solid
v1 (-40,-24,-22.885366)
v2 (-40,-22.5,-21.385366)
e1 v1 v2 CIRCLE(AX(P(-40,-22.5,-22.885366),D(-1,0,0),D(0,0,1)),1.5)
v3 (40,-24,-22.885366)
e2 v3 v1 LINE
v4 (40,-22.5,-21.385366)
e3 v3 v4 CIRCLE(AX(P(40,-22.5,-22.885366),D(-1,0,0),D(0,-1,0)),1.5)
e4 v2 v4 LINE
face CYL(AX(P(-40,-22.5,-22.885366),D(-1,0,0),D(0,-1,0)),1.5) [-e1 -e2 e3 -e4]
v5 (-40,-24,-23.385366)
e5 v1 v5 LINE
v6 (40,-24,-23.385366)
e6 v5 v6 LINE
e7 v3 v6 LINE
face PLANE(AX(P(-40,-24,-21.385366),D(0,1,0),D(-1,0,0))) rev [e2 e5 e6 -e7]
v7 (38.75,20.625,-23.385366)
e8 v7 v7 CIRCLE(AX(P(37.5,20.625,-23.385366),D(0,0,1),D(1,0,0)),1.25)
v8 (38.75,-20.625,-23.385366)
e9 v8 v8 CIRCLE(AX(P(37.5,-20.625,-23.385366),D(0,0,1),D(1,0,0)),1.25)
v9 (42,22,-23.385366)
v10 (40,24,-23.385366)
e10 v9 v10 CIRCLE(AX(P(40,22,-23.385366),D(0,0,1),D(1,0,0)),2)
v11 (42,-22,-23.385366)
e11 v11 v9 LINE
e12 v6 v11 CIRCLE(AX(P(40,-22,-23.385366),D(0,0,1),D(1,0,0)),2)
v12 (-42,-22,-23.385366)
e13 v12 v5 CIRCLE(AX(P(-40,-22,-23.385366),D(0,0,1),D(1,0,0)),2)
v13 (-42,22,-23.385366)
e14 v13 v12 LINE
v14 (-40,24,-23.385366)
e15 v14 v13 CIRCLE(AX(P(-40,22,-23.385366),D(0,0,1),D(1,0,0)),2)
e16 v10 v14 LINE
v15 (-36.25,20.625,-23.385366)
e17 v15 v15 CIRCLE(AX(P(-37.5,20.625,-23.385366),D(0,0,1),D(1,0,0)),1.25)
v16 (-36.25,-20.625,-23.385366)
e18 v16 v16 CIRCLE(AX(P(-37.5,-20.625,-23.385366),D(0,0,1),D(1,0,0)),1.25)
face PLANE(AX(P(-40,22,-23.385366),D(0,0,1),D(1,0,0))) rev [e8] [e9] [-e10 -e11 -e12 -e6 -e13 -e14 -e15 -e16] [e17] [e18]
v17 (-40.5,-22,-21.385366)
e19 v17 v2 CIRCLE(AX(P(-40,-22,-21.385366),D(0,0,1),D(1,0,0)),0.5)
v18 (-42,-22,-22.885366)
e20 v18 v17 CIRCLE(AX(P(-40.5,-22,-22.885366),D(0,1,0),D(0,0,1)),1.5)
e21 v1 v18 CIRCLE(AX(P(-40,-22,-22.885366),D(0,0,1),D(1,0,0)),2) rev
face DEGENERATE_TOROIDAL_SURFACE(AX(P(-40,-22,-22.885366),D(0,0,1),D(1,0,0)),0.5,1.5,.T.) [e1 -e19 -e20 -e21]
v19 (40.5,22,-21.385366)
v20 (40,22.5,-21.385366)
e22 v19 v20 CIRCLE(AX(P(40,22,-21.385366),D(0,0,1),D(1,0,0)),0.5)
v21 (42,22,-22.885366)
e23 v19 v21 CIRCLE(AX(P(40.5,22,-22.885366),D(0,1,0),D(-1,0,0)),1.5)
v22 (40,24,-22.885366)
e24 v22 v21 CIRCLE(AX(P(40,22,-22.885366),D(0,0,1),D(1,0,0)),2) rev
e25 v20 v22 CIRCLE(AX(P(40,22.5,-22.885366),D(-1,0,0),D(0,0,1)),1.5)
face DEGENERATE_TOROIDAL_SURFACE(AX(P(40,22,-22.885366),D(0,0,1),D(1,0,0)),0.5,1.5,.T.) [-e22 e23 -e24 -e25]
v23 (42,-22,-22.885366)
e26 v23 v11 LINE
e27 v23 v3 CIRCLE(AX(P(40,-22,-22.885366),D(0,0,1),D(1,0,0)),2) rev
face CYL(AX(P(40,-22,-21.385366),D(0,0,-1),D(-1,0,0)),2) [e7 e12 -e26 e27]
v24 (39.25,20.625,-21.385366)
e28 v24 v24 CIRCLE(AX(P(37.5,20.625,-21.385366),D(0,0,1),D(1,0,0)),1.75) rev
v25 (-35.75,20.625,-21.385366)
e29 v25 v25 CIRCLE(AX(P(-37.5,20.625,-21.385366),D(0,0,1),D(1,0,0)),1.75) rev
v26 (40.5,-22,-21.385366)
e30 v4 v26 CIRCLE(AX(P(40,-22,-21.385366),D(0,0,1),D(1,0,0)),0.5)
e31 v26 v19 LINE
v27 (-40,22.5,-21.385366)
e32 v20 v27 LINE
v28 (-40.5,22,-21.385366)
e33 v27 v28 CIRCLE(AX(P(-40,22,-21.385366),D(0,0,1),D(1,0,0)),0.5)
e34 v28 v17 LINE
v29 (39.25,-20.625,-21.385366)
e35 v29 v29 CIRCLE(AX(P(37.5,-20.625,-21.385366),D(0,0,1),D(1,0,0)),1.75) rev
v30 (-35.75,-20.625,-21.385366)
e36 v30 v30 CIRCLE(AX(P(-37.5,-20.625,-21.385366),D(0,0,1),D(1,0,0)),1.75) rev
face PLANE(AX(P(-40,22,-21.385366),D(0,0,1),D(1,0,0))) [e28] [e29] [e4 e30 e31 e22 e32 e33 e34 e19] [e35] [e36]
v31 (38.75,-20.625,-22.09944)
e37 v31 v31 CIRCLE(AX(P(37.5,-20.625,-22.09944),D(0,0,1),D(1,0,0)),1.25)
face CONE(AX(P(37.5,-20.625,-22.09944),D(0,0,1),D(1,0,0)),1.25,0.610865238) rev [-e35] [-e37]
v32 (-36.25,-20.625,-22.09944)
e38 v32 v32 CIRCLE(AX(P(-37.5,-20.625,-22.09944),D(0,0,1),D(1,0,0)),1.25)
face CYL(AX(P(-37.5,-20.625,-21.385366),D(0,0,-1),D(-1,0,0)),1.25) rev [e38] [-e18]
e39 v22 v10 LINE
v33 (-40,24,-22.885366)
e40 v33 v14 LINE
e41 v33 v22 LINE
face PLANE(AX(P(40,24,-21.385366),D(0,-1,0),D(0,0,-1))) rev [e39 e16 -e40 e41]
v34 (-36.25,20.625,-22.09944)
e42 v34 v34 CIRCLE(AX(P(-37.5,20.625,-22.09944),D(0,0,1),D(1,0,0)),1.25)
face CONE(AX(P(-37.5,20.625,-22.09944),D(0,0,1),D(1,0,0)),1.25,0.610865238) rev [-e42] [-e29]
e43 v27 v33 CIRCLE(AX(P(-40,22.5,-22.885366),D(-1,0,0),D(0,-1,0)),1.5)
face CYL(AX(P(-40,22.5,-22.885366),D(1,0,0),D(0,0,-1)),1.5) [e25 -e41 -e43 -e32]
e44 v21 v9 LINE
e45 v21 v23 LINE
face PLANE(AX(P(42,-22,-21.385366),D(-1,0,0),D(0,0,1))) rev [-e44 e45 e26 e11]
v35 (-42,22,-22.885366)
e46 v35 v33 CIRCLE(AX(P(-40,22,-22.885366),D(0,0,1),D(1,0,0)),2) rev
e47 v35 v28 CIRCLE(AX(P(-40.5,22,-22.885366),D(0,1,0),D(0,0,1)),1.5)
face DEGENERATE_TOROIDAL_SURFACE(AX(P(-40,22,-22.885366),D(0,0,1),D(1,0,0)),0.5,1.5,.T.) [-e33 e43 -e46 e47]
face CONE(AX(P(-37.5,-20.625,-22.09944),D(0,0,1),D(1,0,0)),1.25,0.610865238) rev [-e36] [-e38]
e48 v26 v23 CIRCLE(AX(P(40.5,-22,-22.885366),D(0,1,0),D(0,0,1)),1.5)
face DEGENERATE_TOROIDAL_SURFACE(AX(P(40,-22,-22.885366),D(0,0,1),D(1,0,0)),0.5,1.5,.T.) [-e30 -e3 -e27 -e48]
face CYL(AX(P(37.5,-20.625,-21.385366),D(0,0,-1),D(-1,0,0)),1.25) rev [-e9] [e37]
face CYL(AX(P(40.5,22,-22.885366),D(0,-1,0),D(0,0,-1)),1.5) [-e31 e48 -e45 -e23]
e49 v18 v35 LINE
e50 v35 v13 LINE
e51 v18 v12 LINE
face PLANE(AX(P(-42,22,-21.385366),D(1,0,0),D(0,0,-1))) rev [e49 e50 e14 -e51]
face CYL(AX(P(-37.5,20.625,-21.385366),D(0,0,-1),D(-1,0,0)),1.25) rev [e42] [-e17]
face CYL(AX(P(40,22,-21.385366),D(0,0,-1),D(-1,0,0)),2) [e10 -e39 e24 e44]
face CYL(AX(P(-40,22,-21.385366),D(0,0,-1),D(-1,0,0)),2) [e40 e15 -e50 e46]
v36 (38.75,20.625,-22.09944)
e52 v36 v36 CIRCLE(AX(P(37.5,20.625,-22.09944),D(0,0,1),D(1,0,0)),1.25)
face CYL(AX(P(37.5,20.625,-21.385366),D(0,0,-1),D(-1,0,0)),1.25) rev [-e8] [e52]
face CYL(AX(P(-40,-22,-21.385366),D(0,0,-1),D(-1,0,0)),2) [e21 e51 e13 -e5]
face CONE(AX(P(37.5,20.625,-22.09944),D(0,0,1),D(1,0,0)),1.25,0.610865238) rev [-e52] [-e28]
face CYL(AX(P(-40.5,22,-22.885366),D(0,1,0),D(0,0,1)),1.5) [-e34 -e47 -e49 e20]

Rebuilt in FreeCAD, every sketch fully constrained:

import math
import FreeCAD as App
import Part
import Sketcher
Q = App.Units.Quantity


def edges_at(feature, points):
    """Names of the edges that pass closest to the given points."""
    edges = feature.Shape.Edges
    near = lambda p: min(range(len(edges)), key=lambda i: edges[i].distToShape(Part.Vertex(*p))[0])
    return sorted({f"Edge{near(p) + 1}" for p in points})

doc = App.newDocument("Part")
body = doc.addObject("PartDesign::Body", "Body")

# Sketch on XY plane
sketch1 = doc.addObject("Sketcher::SketchObject", "Sketch")
body.addObject(sketch1)
sketch1.AttachmentSupport = (doc.XY_Plane, [""])
sketch1.MapMode = "FlatFace"
sketch1.AttachmentOffset = App.Placement(App.Vector(0, 0, -23.385366), App.Rotation())
sketch1.addGeometry([
    Part.LineSegment(App.Vector(-42, 22, 0), App.Vector(-42, -22, 0)),  # 0
    Part.ArcOfCircle(Part.Circle(App.Vector(-40, -22, 0), App.Vector(0, 0, 1), 2), math.radians(-180), math.radians(-90)),  # 1
    Part.LineSegment(App.Vector(-40, -24, 0), App.Vector(40, -24, 0)),  # 2
    Part.ArcOfCircle(Part.Circle(App.Vector(40, -22, 0), App.Vector(0, 0, 1), 2), math.radians(-90), math.radians(0)),  # 3
    Part.LineSegment(App.Vector(42, -22, 0), App.Vector(42, 22, 0)),  # 4
    Part.ArcOfCircle(Part.Circle(App.Vector(40, 22, 0), App.Vector(0, 0, 1), 2), math.radians(0), math.radians(90)),  # 5
    Part.LineSegment(App.Vector(40, 24, 0), App.Vector(-40, 24, 0)),  # 6
    Part.ArcOfCircle(Part.Circle(App.Vector(-40, 22, 0), App.Vector(0, 0, 1), 2), math.radians(90), math.radians(180)),  # 7
    Part.Circle(App.Vector(-37.5, -20.6, 0), App.Vector(0, 0, 1), 1.2),  # 8
    Part.Circle(App.Vector(37.5, -20.6, 0), App.Vector(0, 0, 1), 1.2),  # 9
    Part.Circle(App.Vector(-37.5, 20.6, 0), App.Vector(0, 0, 1), 1.2),  # 10
    Part.Circle(App.Vector(37.5, 20.6, 0), App.Vector(0, 0, 1), 1.2),  # 11
], False)
sketch1.addConstraint([
    Sketcher.Constraint("Tangent", 0, 2, 1, 1),
    Sketcher.Constraint("Tangent", 1, 2, 2, 1),
    Sketcher.Constraint("Tangent", 2, 2, 3, 1),
    Sketcher.Constraint("Tangent", 3, 2, 4, 1),
    Sketcher.Constraint("Tangent", 4, 2, 5, 1),
    Sketcher.Constraint("Tangent", 5, 2, 6, 1),
    Sketcher.Constraint("Tangent", 6, 2, 7, 1),
    Sketcher.Constraint("Tangent", 7, 2, 0, 1),
    Sketcher.Constraint("Vertical", 0),
    Sketcher.Constraint("Horizontal", 2),
    Sketcher.Constraint("Vertical", 4),
    Sketcher.Constraint("Horizontal", 6),
    Sketcher.Constraint("Equal", 1, 3),
    Sketcher.Constraint("Equal", 3, 5),
    Sketcher.Constraint("Equal", 5, 7),
    Sketcher.Constraint("Equal", 8, 9),
    Sketcher.Constraint("Equal", 9, 10),
    Sketcher.Constraint("Equal", 10, 11),
    Sketcher.Constraint("Symmetric", 1, 3, 5, 3, -1, 1),
    Sketcher.Constraint("Symmetric", 9, 3, 10, 3, -1, 1),
    Sketcher.Constraint("Symmetric", 8, 3, 11, 3, -1, 1),
    Sketcher.Constraint("Symmetric", 8, 3, 9, 3, -2),
    Sketcher.Constraint("Radius", 1, Q("2 mm")),
    Sketcher.Constraint("Diameter", 8, Q("2.5 mm")),
    Sketcher.Constraint("DistanceX", 2, 1, 2, 2, Q("80 mm")),
    Sketcher.Constraint("DistanceY", 0, 2, 0, 1, Q("44 mm")),
    Sketcher.Constraint("DistanceX", 8, 3, 9, 3, Q("75 mm")),
    Sketcher.Constraint("DistanceY", 8, 3, 10, 3, Q("41.25 mm")),
])
pad1 = doc.addObject("PartDesign::Pad", "Pad")
body.addObject(pad1)
pad1.Profile = sketch1
pad1.Length = 2
doc.recompute()

fillet = doc.addObject("PartDesign::Fillet", "Fillet")
body.addObject(fillet)
fillet.Base = (pad1, edges_at(pad1, [
    (-41.414, -23.414, -21.385),
    (0, -24, -21.385),
    (41.414, -23.414, -21.385),
    (42, 0, -21.385),
    (41.414, 23.414, -21.385),
    (0, 24, -21.385),
    (-41.414, 23.414, -21.385),
    (-42, 0, -21.385),
]))
fillet.Radius = 1.5
doc.recompute()

chamfer = doc.addObject("PartDesign::Chamfer", "Chamfer")
body.addObject(chamfer)
chamfer.Base = (fillet, edges_at(fillet, [
    (36.25, -20.625, -21.385),
    (-38.75, -20.625, -21.385),
    (36.25, 20.625, -21.385),
    (-38.75, 20.625, -21.385),
]))
chamfer.ChamferType = "Two distances"
chamfer.Size = 0.5
chamfer.Size2 = 0.714074

doc.recompute()
